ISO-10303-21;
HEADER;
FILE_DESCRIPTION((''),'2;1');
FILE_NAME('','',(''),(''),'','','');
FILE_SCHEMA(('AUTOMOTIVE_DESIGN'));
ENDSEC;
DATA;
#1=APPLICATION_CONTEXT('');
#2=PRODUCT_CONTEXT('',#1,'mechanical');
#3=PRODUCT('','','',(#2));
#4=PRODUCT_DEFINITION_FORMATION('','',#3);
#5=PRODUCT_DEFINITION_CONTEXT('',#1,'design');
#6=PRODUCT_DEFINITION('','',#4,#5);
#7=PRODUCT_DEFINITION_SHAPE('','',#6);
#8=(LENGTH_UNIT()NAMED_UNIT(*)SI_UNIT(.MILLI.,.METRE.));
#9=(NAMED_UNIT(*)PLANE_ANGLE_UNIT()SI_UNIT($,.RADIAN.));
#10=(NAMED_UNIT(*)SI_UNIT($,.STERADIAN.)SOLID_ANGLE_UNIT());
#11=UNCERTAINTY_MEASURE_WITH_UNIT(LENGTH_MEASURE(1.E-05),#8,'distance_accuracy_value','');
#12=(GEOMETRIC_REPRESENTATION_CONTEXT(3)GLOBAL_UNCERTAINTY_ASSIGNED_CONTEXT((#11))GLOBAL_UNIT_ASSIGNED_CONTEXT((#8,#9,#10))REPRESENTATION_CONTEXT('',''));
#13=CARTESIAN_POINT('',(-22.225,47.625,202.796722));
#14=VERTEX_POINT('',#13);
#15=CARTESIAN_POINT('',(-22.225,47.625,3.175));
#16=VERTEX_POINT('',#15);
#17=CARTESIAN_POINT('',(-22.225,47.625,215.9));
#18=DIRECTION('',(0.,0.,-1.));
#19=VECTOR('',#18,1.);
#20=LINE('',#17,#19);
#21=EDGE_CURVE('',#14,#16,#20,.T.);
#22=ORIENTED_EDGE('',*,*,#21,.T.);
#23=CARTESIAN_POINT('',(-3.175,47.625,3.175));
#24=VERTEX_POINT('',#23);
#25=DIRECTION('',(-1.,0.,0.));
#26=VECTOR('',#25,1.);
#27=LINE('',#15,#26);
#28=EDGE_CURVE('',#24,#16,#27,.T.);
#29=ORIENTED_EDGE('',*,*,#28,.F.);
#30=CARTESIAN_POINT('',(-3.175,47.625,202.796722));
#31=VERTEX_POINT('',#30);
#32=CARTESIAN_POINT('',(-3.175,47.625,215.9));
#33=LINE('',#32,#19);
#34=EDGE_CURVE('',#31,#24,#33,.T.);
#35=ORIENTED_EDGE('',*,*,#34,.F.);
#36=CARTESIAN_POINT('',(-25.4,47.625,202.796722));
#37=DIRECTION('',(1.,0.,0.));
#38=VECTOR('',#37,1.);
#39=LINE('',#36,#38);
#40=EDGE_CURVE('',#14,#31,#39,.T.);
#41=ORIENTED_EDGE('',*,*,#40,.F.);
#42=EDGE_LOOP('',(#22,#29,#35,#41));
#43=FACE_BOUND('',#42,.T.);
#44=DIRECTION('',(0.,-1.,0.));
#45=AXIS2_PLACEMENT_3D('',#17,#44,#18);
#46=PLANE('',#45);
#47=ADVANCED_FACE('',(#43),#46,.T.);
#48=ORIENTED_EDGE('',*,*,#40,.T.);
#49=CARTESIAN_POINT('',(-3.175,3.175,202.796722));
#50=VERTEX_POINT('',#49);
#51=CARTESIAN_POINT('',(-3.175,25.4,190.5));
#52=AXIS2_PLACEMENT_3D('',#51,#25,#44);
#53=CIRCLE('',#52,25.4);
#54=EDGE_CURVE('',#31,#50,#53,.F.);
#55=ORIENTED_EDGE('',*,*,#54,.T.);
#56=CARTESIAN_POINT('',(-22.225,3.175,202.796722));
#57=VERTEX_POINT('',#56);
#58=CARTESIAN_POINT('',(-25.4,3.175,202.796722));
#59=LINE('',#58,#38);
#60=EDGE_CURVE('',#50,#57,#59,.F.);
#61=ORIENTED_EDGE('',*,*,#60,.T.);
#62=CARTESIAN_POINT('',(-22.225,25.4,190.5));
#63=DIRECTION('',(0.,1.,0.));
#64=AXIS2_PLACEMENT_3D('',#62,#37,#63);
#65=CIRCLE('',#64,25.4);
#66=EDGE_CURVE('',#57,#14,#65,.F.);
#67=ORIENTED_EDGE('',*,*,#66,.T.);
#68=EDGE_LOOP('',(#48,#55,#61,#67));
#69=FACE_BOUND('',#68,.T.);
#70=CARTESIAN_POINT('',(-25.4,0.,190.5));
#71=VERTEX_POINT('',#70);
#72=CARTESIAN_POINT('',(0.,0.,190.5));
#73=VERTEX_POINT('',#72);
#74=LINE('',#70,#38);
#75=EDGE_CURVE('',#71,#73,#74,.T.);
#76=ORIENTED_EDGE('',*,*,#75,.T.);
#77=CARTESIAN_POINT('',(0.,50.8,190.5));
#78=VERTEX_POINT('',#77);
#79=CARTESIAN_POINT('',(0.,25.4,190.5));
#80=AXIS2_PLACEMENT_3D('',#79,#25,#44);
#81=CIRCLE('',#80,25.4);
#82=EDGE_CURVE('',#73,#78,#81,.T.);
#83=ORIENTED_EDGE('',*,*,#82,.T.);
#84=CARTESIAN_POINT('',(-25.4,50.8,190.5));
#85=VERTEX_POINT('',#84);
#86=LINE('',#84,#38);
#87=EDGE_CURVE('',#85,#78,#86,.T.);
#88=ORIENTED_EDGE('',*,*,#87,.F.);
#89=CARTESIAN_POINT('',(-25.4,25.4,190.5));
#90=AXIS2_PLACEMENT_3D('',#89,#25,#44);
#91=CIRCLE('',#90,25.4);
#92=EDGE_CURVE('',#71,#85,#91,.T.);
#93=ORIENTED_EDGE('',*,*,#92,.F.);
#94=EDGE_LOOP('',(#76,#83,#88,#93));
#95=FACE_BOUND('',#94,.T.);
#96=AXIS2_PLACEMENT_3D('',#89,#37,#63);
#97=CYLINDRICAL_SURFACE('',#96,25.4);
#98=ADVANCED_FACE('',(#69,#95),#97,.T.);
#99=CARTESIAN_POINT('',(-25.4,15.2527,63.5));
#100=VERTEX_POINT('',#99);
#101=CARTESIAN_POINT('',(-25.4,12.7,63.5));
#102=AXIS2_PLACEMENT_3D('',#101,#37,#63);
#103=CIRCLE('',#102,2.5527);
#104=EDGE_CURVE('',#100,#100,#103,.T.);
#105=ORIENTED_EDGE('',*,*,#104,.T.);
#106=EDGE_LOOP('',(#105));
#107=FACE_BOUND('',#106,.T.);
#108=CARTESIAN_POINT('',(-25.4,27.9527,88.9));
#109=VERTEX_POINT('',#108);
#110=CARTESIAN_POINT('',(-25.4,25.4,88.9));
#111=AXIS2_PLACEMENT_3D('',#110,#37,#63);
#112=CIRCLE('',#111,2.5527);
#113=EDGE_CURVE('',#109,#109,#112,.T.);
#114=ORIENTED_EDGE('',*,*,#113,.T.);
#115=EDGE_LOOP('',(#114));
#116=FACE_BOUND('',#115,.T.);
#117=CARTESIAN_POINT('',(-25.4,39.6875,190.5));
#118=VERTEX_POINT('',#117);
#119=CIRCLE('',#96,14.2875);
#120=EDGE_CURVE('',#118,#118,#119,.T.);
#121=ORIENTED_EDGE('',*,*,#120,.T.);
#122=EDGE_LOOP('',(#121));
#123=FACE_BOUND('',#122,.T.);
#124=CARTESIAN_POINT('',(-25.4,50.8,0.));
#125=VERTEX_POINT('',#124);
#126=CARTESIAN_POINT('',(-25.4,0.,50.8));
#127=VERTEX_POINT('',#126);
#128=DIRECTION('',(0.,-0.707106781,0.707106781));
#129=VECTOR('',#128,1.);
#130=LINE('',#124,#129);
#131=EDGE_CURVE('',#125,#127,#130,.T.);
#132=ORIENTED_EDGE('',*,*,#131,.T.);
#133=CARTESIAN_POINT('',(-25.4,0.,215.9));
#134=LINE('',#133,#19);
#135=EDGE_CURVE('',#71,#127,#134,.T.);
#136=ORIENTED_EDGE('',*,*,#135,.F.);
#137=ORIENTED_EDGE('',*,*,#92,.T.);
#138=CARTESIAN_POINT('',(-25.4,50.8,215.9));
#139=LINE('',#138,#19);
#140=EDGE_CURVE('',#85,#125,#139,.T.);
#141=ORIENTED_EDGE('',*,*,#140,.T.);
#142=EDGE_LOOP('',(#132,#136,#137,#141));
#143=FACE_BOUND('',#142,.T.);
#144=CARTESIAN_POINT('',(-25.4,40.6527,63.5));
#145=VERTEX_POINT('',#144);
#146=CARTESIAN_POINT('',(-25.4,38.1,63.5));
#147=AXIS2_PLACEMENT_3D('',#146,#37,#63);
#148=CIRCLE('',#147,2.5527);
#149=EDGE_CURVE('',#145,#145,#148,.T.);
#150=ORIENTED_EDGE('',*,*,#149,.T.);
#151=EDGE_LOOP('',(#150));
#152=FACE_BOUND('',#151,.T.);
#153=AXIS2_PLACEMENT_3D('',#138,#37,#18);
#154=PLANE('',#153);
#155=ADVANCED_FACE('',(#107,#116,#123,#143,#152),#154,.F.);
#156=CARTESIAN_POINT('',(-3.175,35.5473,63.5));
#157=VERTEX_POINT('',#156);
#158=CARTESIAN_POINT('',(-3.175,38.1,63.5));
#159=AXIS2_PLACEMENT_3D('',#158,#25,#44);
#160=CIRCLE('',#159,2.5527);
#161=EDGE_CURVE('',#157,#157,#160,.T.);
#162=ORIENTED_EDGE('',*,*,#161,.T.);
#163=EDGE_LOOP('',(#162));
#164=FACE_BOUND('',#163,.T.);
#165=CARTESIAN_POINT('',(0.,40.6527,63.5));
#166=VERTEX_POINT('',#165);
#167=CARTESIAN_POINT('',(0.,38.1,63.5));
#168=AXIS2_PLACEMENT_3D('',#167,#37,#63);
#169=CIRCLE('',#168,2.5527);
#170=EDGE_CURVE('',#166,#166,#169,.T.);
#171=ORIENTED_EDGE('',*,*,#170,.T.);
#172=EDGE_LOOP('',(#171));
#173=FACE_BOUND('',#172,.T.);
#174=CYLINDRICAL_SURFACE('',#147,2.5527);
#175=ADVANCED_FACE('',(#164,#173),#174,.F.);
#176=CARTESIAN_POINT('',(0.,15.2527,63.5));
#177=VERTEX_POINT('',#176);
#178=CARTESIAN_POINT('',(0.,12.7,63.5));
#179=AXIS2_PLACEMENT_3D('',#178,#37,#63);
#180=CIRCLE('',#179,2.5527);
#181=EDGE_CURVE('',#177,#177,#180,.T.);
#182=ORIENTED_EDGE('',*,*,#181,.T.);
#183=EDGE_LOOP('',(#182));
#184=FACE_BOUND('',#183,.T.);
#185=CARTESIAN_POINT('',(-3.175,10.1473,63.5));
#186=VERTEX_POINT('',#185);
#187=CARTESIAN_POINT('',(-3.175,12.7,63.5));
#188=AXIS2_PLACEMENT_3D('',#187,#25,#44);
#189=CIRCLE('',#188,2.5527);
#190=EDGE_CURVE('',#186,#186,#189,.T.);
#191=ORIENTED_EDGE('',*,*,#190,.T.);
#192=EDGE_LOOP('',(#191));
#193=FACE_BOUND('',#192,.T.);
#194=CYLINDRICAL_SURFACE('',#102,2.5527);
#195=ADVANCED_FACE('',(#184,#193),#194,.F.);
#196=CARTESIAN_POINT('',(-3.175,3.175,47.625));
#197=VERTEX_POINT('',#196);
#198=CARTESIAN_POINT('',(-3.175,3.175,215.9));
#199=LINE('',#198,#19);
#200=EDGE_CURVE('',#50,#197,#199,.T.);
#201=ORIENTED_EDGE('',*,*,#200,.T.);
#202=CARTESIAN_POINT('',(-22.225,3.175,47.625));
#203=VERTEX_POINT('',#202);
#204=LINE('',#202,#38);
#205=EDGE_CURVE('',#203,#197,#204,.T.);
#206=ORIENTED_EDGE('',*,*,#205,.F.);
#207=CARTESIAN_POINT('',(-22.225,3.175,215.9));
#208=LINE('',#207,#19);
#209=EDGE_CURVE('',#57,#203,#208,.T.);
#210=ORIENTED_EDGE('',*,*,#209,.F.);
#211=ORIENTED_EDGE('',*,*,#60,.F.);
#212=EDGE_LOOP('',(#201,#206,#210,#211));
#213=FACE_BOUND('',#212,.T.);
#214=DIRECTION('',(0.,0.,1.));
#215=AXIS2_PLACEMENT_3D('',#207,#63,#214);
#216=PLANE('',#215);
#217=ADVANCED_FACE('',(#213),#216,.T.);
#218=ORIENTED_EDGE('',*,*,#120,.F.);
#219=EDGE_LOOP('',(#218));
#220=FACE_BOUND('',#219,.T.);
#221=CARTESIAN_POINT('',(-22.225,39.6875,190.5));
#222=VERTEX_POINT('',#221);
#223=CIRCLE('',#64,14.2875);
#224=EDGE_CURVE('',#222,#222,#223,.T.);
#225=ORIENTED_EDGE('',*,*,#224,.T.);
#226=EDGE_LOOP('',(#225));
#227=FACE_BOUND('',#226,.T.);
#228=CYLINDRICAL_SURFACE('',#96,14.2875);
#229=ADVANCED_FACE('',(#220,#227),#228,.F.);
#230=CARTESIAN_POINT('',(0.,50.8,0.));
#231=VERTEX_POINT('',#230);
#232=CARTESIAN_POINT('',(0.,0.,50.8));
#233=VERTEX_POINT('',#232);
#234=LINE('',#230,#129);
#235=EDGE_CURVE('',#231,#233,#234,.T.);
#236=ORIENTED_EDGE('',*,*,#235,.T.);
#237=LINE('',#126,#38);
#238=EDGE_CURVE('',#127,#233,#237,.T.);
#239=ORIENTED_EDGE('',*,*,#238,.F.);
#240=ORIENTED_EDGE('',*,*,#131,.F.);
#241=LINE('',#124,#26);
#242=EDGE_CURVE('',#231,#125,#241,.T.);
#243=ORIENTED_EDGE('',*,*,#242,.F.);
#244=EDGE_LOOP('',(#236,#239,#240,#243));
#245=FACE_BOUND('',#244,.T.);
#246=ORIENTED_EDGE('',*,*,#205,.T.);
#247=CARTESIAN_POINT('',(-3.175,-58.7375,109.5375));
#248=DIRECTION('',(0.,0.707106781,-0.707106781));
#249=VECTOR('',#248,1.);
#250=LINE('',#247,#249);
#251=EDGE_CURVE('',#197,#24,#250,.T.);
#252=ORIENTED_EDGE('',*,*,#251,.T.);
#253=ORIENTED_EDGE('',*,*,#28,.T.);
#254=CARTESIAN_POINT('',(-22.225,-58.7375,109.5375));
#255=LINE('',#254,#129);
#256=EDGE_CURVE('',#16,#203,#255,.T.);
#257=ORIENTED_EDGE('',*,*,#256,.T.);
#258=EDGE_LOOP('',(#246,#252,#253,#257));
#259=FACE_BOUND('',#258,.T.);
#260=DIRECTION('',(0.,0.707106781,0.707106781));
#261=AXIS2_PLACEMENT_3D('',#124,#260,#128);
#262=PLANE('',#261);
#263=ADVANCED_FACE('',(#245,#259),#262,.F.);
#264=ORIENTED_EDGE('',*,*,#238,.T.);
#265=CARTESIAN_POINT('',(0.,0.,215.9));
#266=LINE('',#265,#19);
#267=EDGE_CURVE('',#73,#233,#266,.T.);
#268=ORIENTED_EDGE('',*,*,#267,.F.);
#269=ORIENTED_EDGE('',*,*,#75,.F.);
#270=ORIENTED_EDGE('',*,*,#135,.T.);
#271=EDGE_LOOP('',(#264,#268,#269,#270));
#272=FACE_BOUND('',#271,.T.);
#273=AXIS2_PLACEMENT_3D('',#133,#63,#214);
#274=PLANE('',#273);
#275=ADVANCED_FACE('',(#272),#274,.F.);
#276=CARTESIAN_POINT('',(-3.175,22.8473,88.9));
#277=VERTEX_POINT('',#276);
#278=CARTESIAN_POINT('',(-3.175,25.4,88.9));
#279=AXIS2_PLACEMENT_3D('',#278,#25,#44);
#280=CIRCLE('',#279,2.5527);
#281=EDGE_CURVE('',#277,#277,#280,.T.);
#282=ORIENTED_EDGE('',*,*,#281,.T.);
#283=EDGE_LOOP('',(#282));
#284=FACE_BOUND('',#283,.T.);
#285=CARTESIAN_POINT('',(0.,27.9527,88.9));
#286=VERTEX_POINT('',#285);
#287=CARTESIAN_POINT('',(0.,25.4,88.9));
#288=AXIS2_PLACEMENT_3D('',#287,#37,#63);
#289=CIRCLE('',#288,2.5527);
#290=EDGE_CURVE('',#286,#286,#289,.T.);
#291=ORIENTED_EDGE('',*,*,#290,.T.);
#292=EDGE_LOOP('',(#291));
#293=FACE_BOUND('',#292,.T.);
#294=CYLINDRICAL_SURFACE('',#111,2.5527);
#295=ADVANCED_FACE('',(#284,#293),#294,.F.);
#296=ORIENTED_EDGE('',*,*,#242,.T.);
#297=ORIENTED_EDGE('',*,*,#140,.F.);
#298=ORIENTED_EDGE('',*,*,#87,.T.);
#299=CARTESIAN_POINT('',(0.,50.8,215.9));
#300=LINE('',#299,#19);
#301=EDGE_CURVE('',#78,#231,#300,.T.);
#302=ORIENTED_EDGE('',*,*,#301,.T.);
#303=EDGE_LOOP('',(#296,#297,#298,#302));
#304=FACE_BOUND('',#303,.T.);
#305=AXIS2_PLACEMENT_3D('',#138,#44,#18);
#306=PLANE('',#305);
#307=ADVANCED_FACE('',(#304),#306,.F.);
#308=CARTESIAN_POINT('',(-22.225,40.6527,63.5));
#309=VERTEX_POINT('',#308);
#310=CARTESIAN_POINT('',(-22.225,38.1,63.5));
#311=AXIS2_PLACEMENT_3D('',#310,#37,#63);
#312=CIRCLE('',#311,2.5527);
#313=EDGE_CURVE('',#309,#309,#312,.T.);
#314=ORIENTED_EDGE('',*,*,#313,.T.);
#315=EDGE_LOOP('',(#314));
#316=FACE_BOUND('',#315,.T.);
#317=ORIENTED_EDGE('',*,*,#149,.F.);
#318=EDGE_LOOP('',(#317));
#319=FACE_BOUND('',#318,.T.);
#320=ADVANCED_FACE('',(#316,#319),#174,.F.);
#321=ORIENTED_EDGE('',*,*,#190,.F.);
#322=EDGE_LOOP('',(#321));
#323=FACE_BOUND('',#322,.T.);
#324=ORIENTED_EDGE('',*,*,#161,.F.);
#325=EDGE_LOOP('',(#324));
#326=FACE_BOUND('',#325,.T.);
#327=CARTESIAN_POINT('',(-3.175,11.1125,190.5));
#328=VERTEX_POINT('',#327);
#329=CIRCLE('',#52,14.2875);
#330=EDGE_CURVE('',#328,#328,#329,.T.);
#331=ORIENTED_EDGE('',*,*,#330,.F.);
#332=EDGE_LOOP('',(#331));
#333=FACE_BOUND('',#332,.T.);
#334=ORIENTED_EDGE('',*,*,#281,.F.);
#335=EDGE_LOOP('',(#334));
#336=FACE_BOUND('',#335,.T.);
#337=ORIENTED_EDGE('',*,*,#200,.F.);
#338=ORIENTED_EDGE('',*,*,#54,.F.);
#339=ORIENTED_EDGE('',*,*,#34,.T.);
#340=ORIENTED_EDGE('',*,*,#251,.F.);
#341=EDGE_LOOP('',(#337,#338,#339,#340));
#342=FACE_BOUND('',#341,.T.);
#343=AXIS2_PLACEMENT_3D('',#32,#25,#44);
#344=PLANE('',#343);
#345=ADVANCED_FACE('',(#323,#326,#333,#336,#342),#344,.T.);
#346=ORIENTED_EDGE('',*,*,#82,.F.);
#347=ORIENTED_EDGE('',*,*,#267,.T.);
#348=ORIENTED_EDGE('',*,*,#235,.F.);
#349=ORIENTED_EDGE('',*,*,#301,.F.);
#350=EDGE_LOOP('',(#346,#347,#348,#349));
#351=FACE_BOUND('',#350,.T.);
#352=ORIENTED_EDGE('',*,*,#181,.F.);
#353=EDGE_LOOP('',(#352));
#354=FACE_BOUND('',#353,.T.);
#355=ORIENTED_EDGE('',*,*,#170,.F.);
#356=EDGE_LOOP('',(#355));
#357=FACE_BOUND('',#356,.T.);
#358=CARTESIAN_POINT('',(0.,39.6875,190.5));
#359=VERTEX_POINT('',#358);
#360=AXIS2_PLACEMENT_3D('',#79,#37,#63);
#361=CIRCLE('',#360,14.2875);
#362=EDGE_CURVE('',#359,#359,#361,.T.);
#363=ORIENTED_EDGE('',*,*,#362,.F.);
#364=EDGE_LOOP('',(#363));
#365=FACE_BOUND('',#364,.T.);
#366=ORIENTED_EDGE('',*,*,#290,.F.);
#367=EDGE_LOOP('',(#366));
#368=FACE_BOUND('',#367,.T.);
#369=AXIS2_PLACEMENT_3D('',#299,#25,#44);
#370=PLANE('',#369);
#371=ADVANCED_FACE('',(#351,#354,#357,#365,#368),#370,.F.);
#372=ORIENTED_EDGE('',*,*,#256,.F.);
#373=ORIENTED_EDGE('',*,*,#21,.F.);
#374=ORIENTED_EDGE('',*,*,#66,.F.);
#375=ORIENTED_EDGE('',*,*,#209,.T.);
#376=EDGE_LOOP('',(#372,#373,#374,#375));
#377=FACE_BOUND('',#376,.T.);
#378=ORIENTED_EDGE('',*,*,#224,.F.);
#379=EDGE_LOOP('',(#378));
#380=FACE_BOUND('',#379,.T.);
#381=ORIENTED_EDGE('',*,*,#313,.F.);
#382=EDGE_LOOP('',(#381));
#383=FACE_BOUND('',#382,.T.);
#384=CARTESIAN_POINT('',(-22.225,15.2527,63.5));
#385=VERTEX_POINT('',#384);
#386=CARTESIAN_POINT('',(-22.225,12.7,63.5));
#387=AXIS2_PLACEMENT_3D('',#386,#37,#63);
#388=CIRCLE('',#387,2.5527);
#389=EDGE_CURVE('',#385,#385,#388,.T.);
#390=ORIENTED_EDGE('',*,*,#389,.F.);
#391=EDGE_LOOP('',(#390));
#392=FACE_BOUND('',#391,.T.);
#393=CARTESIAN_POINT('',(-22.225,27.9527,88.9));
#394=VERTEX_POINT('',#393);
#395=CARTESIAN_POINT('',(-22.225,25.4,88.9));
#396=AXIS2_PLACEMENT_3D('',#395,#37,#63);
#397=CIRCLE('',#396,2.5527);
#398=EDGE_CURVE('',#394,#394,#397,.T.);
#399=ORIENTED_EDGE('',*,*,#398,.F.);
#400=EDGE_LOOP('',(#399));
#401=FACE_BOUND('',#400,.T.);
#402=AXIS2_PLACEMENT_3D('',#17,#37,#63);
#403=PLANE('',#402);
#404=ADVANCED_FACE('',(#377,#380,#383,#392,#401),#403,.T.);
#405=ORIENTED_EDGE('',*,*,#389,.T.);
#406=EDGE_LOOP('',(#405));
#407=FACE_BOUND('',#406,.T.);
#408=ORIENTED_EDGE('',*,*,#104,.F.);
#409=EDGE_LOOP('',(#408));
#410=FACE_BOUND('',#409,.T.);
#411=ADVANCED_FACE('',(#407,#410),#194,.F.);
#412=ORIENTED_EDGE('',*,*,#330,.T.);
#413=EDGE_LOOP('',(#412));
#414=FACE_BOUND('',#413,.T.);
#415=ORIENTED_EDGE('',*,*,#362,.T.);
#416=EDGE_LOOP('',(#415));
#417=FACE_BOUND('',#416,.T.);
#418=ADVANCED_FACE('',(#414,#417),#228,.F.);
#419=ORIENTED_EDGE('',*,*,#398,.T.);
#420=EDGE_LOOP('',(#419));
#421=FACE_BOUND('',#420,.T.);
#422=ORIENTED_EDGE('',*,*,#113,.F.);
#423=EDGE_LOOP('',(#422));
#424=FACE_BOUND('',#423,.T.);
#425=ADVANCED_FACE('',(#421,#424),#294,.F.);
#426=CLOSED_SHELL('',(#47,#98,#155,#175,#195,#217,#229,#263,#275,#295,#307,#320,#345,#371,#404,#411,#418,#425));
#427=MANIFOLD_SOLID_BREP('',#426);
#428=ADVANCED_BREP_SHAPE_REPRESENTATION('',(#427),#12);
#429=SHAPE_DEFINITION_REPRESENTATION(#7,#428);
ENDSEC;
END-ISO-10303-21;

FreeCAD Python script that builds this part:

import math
import FreeCAD as App
import Part
import Sketcher

V = App.Vector
Q = App.Units.Quantity


def add_polygon(sketch, points):
    """Adds a closed chain of lines whose ends are joined by coincident constraints."""
    first, n = sketch.GeometryCount, len(points)
    for a, b in zip(points, points[1:] + points[:1]):
        sketch.addGeometry(Part.LineSegment(App.Vector(*a, 0), App.Vector(*b, 0)), False)
    for i in range(n):
        sketch.addConstraint(Sketcher.Constraint("Coincident", first + i, 2, first + (i + 1) % n, 1))

doc = App.newDocument("Part")
body = doc.addObject("PartDesign::Body", "Body")

# Sketch on XY plane
sketch1 = doc.addObject("Sketcher::SketchObject", "Sketch")
body.addObject(sketch1)
sketch1.AttachmentSupport = (doc.XY_Plane, [""])
sketch1.MapMode = "FlatFace"
add_polygon(sketch1, [(-25, 51), (-25, 0), (0, 0), (0, 51)])  # lines 0-3
add_polygon(sketch1, [(-3, 3), (-22, 3), (-22, 48), (-3, 48)])  # lines 4-7
sketch1.addConstraint(Sketcher.Constraint("Vertical", 0))
sketch1.addConstraint(Sketcher.Constraint("Horizontal", 1))
sketch1.addConstraint(Sketcher.Constraint("Vertical", 2))
sketch1.addConstraint(Sketcher.Constraint("Horizontal", 3))
sketch1.addConstraint(Sketcher.Constraint("Horizontal", 4))
sketch1.addConstraint(Sketcher.Constraint("Vertical", 5))
sketch1.addConstraint(Sketcher.Constraint("Horizontal", 6))
sketch1.addConstraint(Sketcher.Constraint("Vertical", 7))
sketch1.addConstraint(Sketcher.Constraint("Coincident", 1, 2, -1, 1))
sketch1.addConstraint(Sketcher.Constraint("DistanceX", 1, 1, 1, 2, Q("1 in")))
sketch1.addConstraint(Sketcher.Constraint("DistanceY", 0, 2, 0, 1, Q("2 in")))
sketch1.addConstraint(Sketcher.Constraint("DistanceX", 4, 2, 4, 1, Q("0.75 in")))
sketch1.addConstraint(Sketcher.Constraint("DistanceY", 5, 1, 5, 2, Q("1.75 in")))
sketch1.addConstraint(Sketcher.Constraint("DistanceX", 4, 2, -1, 1, Q("0.875 in")))
sketch1.addConstraint(Sketcher.Constraint("DistanceY", -1, 1, 4, 2, Q("0.125 in")))
pad1 = doc.addObject("PartDesign::Pad", "Pad")
body.addObject(pad1)
pad1.Profile = sketch1
pad1.Length = Q("8.5 in")

# Sketch on YZ plane
sketch2 = doc.addObject("Sketcher::SketchObject", "Sketch001")
body.addObject(sketch2)
sketch2.AttachmentSupport = (doc.YZ_Plane, [""])
sketch2.MapMode = "FlatFace"
add_polygon(sketch2, [(51, 0), (0, 51), (0, 0)])  # lines 0-2
sketch2.addConstraint(Sketcher.Constraint("Vertical", 1))
sketch2.addConstraint(Sketcher.Constraint("Horizontal", 2))
sketch2.addConstraint(Sketcher.Constraint("Coincident", 1, 2, -1, 1))
sketch2.addConstraint(Sketcher.Constraint("Equal", 2, 1))
sketch2.addConstraint(Sketcher.Constraint("DistanceX", 2, 1, 2, 2, Q("2 in")))
pocket1 = doc.addObject("PartDesign::Pocket", "Pocket")
body.addObject(pocket1)
pocket1.Profile = sketch2
pocket1.Length = Q("1 in")

# Sketch on YZ plane
sketch3 = doc.addObject("Sketcher::SketchObject", "Sketch002")
body.addObject(sketch3)
sketch3.AttachmentSupport = (doc.YZ_Plane, [""])
sketch3.MapMode = "FlatFace"
sketch3.addGeometry(Part.Circle(V(38.1, 63.5, 0), V(0, 0, 1), 2.6), False)
sketch3.addGeometry(Part.Circle(V(12.7, 63.5, 0), V(0, 0, 1), 2.6), False)
sketch3.addGeometry(Part.Circle(V(25.4, 88.9, 0), V(0, 0, 1), 2.6), False)
sketch3.addConstraint(Sketcher.Constraint("Equal", 0, 1))
sketch3.addConstraint(Sketcher.Constraint("Equal", 1, 2))
sketch3.addConstraint(Sketcher.Constraint("Horizontal", 0, 3, 1, 3))
sketch3.addConstraint(Sketcher.Constraint("Diameter", 0, Q("0.201 in")))
sketch3.addConstraint(Sketcher.Constraint("DistanceX", -1, 1, 2, 3, Q("1 in")))
sketch3.addConstraint(Sketcher.Constraint("DistanceX", 1, 3, 0, 3, Q("1 in")))
sketch3.addConstraint(Sketcher.Constraint("DistanceY", 0, 3, 2, 3, Q("1 in")))
sketch3.addConstraint(Sketcher.Constraint("DistanceX", -1, 1, 0, 3, Q("1.5 in")))
sketch3.addConstraint(Sketcher.Constraint("DistanceY", -1, 1, 0, 3, Q("2.5 in")))
pocket2 = doc.addObject("PartDesign::Pocket", "Pocket001")
body.addObject(pocket2)
pocket2.Profile = sketch3
pocket2.Length = Q("1 in")

# Sketch on YZ plane
sketch4 = doc.addObject("Sketcher::SketchObject", "Sketch003")
body.addObject(sketch4)
sketch4.AttachmentSupport = (doc.YZ_Plane, [""])
sketch4.MapMode = "FlatFace"
sketch4.addGeometry(Part.ArcOfCircle(Part.Circle(V(25, 190, 0), V(0, 0, 1), 25), math.radians(0), math.radians(180)), False)
sketch4.addGeometry(Part.LineSegment(V(51, 190, 0), V(64, 190, 0)), False)
sketch4.addGeometry(Part.ArcOfCircle(Part.Circle(V(25, 190, 0), V(0, 0, 1), 38), math.radians(0), math.radians(180)), False)
sketch4.addGeometry(Part.LineSegment(V(-13, 190, 0), V(0, 190, 0)), False)
sketch4.addConstraint(Sketcher.Constraint("Coincident", 0, 1, 1, 1))
sketch4.addConstraint(Sketcher.Constraint("Coincident", 1, 2, 2, 1))
sketch4.addConstraint(Sketcher.Constraint("Coincident", 2, 2, 3, 1))
sketch4.addConstraint(Sketcher.Constraint("Coincident", 3, 2, 0, 2))
sketch4.addConstraint(Sketcher.Constraint("Horizontal", 1))
sketch4.addConstraint(Sketcher.Constraint("Horizontal", 3))
sketch4.addConstraint(Sketcher.Constraint("Coincident", 2, 3, 0, 3))
sketch4.addConstraint(Sketcher.Constraint("PointOnObject", 3, 2, -2))
sketch4.addConstraint(Sketcher.Constraint("Horizontal", 2, 3, 0, 1))
sketch4.addConstraint(Sketcher.Constraint("Horizontal", 1, 2, 2, 2))
sketch4.addConstraint(Sketcher.Constraint("Radius", 0, Q("1 in")))
sketch4.addConstraint(Sketcher.Constraint("Radius", 2, Q("1.5 in")))
sketch4.addConstraint(Sketcher.Constraint("DistanceY", -1, 1, 0, 3, Q("7.5 in")))
pocket3 = doc.addObject("PartDesign::Pocket", "Pocket002")
body.addObject(pocket3)
pocket3.Profile = sketch4
pocket3.Type = "ThroughAll"

# Sketch on YZ plane
sketch5 = doc.addObject("Sketcher::SketchObject", "Sketch004")
body.addObject(sketch5)
sketch5.AttachmentSupport = (doc.YZ_Plane, [""])
sketch5.MapMode = "FlatFace"
sketch5.addGeometry(Part.Circle(V(25, 190, 0), V(0, 0, 1), 14), False)
sketch5.addConstraint(Sketcher.Constraint("Diameter", 0, Q("1.125 in")))
sketch5.addConstraint(Sketcher.Constraint("DistanceX", -1, 1, 0, 3, Q("1 in")))
sketch5.addConstraint(Sketcher.Constraint("DistanceY", -1, 1, 0, 3, Q("7.5 in")))
pocket4 = doc.addObject("PartDesign::Pocket", "Pocket003")
body.addObject(pocket4)
pocket4.Profile = sketch5
pocket4.Length = Q("1 in")

doc.recompute()
